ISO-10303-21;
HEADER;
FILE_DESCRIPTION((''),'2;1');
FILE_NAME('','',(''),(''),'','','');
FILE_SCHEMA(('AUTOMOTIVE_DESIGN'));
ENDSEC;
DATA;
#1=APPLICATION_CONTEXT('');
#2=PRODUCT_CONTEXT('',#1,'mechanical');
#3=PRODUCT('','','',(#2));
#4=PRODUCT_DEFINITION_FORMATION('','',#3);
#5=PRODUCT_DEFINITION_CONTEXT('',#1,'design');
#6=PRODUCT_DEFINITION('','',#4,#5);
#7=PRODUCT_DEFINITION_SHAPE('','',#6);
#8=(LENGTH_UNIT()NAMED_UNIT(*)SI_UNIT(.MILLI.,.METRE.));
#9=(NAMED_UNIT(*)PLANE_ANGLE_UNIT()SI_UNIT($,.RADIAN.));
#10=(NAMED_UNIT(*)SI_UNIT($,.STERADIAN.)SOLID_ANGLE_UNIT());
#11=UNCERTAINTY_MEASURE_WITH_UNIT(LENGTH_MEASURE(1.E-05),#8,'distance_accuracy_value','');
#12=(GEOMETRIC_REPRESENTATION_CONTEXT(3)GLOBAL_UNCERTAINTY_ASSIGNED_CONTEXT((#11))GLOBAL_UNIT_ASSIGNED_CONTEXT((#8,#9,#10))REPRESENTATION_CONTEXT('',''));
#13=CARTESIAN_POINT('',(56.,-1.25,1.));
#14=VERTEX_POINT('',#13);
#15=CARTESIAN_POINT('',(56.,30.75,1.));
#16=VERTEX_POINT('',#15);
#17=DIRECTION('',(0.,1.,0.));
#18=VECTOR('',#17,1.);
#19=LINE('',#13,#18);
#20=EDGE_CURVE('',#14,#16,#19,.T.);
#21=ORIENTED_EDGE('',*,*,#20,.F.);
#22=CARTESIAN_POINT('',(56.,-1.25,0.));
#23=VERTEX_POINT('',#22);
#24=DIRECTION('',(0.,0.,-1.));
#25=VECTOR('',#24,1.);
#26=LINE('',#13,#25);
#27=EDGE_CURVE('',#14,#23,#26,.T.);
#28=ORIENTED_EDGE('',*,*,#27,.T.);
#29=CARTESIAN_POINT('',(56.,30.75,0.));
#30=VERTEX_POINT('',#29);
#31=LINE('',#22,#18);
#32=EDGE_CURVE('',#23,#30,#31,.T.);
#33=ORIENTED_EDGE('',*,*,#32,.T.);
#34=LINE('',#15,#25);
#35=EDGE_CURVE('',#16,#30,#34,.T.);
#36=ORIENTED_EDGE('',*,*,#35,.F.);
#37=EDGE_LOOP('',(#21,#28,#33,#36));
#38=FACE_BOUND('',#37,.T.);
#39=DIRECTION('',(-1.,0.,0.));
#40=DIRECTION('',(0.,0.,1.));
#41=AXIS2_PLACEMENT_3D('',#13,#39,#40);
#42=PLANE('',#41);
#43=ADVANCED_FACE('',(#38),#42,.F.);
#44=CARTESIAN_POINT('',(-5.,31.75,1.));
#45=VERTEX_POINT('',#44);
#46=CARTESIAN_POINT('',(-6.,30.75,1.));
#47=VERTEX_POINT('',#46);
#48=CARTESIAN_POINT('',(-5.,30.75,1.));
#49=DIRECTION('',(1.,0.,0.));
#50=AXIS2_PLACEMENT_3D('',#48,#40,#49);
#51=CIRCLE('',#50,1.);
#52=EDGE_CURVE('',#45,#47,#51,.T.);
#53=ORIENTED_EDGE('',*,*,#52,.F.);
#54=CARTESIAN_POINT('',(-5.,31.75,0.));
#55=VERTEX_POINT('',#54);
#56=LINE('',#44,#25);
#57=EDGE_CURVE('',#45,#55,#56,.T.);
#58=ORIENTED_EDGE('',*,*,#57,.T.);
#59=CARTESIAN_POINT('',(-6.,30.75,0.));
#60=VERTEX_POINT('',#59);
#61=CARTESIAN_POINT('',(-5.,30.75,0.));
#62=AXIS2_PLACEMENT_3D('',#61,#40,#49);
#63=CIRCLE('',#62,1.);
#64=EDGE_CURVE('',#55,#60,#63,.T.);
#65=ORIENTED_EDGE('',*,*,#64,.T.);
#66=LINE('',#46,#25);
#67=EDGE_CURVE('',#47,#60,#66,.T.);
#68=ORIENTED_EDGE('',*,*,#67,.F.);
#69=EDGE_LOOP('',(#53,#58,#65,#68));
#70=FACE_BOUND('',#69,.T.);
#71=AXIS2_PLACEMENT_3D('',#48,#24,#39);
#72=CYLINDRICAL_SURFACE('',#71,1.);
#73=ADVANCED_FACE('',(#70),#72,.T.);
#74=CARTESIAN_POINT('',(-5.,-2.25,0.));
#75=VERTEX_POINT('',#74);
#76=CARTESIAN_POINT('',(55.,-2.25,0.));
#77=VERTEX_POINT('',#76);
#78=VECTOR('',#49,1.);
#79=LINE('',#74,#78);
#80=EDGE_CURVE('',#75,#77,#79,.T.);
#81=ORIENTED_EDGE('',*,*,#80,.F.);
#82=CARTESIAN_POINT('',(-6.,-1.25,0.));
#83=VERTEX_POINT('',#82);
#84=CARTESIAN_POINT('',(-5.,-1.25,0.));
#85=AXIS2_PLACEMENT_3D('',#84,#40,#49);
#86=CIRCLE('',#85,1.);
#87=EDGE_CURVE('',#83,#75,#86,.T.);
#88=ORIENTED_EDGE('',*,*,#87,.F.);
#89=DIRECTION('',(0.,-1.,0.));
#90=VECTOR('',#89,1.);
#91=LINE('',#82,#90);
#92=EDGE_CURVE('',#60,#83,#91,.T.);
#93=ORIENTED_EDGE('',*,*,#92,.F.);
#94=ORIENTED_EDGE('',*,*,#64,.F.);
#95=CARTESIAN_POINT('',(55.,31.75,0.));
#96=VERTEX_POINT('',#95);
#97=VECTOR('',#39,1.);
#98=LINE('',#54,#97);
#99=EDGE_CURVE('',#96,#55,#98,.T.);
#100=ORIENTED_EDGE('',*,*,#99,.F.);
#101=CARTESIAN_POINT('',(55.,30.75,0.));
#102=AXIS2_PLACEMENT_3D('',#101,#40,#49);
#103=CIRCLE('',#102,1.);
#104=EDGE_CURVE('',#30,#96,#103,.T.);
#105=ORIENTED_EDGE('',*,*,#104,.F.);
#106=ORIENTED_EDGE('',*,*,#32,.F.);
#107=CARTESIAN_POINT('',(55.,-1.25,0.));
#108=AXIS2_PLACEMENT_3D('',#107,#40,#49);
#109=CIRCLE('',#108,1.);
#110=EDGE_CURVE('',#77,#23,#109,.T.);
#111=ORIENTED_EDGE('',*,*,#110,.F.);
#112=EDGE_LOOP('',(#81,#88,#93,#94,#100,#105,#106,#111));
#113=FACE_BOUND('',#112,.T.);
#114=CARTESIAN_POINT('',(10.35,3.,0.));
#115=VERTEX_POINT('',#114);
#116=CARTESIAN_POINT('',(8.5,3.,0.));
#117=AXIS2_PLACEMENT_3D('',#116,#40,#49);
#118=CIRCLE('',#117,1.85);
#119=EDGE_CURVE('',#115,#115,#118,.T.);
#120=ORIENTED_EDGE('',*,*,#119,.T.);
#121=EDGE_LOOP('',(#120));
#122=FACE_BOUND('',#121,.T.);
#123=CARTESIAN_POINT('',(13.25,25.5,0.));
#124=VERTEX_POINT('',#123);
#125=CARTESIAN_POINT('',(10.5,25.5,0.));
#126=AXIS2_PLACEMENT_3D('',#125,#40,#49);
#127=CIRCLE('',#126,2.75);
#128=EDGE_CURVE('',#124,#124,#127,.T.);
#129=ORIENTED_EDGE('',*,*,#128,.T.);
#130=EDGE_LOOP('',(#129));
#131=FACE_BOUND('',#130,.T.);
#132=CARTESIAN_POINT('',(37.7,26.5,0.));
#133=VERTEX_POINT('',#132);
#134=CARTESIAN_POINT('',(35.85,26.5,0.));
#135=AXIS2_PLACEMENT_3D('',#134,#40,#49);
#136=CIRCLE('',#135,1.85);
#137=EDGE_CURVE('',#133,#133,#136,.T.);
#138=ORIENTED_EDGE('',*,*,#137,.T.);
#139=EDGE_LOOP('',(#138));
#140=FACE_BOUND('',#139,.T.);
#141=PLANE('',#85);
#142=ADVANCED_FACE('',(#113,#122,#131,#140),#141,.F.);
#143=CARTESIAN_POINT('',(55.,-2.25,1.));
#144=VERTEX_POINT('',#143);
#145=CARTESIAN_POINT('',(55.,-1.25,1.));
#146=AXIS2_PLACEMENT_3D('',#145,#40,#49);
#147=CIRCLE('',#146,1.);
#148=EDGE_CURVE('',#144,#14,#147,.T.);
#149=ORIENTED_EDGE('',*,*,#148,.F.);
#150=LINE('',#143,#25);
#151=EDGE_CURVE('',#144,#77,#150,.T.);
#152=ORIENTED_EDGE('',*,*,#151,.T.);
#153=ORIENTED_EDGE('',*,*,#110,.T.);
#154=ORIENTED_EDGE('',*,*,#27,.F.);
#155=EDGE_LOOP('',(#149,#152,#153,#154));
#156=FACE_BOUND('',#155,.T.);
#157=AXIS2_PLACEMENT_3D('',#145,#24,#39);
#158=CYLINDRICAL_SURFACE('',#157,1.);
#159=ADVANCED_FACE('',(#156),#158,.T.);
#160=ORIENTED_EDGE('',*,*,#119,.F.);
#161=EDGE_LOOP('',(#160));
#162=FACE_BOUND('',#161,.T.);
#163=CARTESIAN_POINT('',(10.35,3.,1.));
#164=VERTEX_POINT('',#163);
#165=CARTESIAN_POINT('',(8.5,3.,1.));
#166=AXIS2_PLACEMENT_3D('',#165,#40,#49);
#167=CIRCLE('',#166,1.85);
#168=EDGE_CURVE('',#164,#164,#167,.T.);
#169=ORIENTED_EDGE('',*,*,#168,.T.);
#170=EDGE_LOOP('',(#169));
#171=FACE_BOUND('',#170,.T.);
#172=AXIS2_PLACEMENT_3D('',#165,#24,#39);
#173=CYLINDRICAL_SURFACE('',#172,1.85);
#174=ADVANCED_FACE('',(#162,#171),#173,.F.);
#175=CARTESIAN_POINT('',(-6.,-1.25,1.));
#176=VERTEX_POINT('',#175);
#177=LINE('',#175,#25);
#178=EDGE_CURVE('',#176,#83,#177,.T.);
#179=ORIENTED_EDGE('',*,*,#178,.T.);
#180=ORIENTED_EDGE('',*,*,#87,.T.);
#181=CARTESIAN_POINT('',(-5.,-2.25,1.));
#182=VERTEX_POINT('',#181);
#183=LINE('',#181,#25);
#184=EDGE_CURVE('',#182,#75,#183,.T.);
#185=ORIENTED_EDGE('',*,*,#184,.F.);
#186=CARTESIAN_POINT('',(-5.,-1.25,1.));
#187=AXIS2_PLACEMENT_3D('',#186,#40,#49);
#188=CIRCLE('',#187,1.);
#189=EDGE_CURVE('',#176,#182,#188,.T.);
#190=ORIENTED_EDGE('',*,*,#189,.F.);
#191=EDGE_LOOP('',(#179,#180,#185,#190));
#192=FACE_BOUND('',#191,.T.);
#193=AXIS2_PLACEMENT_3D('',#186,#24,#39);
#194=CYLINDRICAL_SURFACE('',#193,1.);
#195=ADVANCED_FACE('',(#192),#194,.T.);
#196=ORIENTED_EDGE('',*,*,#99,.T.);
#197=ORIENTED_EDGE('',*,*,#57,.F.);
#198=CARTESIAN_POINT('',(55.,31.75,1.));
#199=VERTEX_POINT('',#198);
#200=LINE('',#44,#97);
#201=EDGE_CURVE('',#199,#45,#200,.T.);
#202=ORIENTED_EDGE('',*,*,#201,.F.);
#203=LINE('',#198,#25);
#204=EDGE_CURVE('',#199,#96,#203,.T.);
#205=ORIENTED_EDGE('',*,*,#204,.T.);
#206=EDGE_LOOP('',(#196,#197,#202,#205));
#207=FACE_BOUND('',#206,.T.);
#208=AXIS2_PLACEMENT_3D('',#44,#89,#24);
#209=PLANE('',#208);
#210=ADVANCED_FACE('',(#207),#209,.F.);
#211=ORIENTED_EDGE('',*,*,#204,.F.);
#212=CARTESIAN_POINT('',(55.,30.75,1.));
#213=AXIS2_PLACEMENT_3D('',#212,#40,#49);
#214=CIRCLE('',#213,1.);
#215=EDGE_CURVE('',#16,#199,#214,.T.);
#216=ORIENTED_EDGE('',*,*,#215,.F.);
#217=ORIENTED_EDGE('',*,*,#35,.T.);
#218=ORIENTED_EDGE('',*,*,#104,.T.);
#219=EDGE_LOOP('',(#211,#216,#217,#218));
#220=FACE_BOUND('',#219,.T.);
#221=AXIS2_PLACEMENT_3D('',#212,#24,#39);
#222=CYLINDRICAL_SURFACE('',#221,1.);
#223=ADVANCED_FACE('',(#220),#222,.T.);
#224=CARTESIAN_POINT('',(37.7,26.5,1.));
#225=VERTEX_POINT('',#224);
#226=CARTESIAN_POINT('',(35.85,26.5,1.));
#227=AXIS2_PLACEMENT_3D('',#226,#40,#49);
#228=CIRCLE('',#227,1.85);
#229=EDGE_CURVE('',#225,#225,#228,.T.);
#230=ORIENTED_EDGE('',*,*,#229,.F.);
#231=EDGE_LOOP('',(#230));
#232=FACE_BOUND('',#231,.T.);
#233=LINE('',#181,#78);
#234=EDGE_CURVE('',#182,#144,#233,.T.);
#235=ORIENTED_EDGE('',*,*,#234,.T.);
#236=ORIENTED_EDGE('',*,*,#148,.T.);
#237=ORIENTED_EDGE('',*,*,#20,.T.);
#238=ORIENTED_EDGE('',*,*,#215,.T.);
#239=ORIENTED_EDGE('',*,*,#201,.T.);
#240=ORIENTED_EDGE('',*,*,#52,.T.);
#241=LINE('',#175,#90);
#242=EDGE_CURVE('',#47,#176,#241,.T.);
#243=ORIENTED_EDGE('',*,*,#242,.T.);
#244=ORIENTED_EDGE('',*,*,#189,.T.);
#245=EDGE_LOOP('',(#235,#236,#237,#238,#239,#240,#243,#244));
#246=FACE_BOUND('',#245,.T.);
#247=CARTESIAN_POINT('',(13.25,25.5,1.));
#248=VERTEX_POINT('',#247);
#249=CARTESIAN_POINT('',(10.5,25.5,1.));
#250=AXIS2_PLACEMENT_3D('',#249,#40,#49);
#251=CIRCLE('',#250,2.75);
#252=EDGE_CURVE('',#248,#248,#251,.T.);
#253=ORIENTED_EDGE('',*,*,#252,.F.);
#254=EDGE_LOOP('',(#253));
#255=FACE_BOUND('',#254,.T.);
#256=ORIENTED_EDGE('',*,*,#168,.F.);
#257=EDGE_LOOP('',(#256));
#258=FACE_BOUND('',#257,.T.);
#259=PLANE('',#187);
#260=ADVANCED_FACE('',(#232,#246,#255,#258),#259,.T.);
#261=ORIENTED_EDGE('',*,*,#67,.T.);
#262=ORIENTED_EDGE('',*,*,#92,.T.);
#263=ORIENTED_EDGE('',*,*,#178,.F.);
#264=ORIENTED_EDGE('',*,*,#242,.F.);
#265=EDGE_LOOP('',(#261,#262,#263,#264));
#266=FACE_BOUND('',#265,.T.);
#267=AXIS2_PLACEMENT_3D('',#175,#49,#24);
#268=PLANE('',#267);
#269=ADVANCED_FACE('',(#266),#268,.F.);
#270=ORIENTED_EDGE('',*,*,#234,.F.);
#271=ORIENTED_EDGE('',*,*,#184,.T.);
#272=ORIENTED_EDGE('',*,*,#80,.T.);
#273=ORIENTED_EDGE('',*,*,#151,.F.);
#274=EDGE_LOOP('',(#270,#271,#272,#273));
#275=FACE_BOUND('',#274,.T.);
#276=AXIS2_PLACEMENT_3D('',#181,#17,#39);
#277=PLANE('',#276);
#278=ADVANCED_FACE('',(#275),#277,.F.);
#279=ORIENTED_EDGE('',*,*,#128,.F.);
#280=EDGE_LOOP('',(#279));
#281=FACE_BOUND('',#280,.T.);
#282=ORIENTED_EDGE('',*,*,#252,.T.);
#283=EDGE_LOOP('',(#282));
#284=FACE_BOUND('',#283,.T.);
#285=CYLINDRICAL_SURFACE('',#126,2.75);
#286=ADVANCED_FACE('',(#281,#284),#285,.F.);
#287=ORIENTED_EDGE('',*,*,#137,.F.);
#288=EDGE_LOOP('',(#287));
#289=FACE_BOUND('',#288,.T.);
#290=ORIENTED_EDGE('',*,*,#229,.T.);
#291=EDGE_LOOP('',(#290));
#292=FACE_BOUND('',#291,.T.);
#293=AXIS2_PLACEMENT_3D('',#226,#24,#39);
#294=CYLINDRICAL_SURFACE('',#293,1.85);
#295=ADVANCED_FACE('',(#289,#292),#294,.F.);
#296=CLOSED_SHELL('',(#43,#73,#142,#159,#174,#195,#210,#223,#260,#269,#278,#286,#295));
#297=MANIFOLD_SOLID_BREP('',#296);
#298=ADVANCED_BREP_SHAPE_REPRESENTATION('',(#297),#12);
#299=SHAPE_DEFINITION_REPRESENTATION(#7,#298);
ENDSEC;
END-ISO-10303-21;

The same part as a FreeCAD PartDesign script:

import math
import FreeCAD as App
import Part
import Sketcher
from FreeCAD import Vector

doc = App.newDocument("Part")
params = doc.addObject("Spreadsheet::Sheet", "Params")
for row, (alias, value) in enumerate([
    ("sketch1_radius", "1 mm"),
    ("sketch1_diameter", "3.7 mm"),
    ("sketch1_width", "60 mm"),
    ("sketch1_height", "32 mm"),
    ("pad1_length", "1 mm"),
    ("sketch2_diameter", "5.5 mm"),
], start=1):
    params.set(f"A{row}", alias)
    params.set(f"B{row}", "=" + value)
    params.setAlias(f"B{row}", alias)

body = doc.addObject("PartDesign::Body", "Body")

# Sketch on XY plane
sketch1 = body.newObject("Sketcher::SketchObject", "Sketch")
sketch1.AttachmentSupport = (doc.getObject("XY_Plane"), [""])
sketch1.MapMode = "FlatFace"
sketch1.addGeometry(Part.LineSegment(Vector(55, 31.75, 0), Vector(-5, 31.75, 0)), False)
sketch1.addGeometry(Part.ArcOfCircle(Part.Circle(Vector(-5, 30.75, 0), Vector(0, 0, 1), 1), math.radians(90), math.radians(180)), False)
sketch1.addGeometry(Part.LineSegment(Vector(-6, 30.75, 0), Vector(-6, -1.25, 0)), False)
sketch1.addGeometry(Part.ArcOfCircle(Part.Circle(Vector(-5, -1.25, 0), Vector(0, 0, 1), 1), math.radians(-180), math.radians(-90)), False)
sketch1.addGeometry(Part.LineSegment(Vector(-5, -2.25, 0), Vector(55, -2.25, 0)), False)
sketch1.addGeometry(Part.ArcOfCircle(Part.Circle(Vector(55, -1.25, 0), Vector(0, 0, 1), 1), math.radians(-90), math.radians(0)), False)
sketch1.addGeometry(Part.LineSegment(Vector(56, -1.25, 0), Vector(56, 30.75, 0)), False)
sketch1.addGeometry(Part.ArcOfCircle(Part.Circle(Vector(55, 30.75, 0), Vector(0, 0, 1), 1), math.radians(0), math.radians(90)), False)
sketch1.addGeometry(Part.Circle(Vector(8.5, 3, 0), Vector(0, 0, 1), 1.85), False)
sketch1.addGeometry(Part.Circle(Vector(35.85, 26.5, 0), Vector(0, 0, 1), 1.85), False)
sketch1.addConstraint(Sketcher.Constraint("Tangent", 0, 2, 1, 1))
sketch1.addConstraint(Sketcher.Constraint("Tangent", 1, 2, 2, 1))
sketch1.addConstraint(Sketcher.Constraint("Tangent", 2, 2, 3, 1))
sketch1.addConstraint(Sketcher.Constraint("Tangent", 3, 2, 4, 1))
sketch1.addConstraint(Sketcher.Constraint("Tangent", 4, 2, 5, 1))
sketch1.addConstraint(Sketcher.Constraint("Tangent", 5, 2, 6, 1))
sketch1.addConstraint(Sketcher.Constraint("Tangent", 6, 2, 7, 1))
sketch1.addConstraint(Sketcher.Constraint("Tangent", 7, 2, 0, 1))
sketch1.addConstraint(Sketcher.Constraint("Horizontal", 0))
sketch1.addConstraint(Sketcher.Constraint("Vertical", 2))
sketch1.addConstraint(Sketcher.Constraint("Horizontal", 4))
sketch1.addConstraint(Sketcher.Constraint("Vertical", 6))
sketch1.addConstraint(Sketcher.Constraint("Equal", 1, 3))
sketch1.addConstraint(Sketcher.Constraint("Equal", 3, 5))
sketch1.addConstraint(Sketcher.Constraint("Equal", 5, 7))
sketch1.addConstraint(Sketcher.Constraint("Equal", 8, 9))
sketch1.addConstraint(Sketcher.Constraint("Radius", 1, 1.0))
sketch1.addConstraint(Sketcher.Constraint("Diameter", 8, 3.7))
sketch1.addConstraint(Sketcher.Constraint("DistanceX", 0, 2, 0, 1, 60.0))
sketch1.addConstraint(Sketcher.Constraint("DistanceY", 2, 2, 2, 1, 32.0))
sketch1.addConstraint(Sketcher.Constraint("DistanceX", 1, 3, -1, 1, 5.0))
sketch1.addConstraint(Sketcher.Constraint("DistanceY", -1, 1, 8, 3, 3.0))
sketch1.addConstraint(Sketcher.Constraint("DistanceX", -1, 1, 8, 3, 8.5))
sketch1.addConstraint(Sketcher.Constraint("DistanceY", -1, 1, 9, 3, 26.5))
sketch1.addConstraint(Sketcher.Constraint("DistanceY", -1, 1, 1, 3, 30.75))
sketch1.addConstraint(Sketcher.Constraint("DistanceX", -1, 1, 9, 3, 35.85))
sketch1.setExpression("Constraints[16]", "Params.sketch1_radius")
sketch1.setExpression("Constraints[17]", "Params.sketch1_diameter")
sketch1.setExpression("Constraints[18]", "Params.sketch1_width")
sketch1.setExpression("Constraints[19]", "Params.sketch1_height")
pad1 = body.newObject("PartDesign::Pad", "Pad")
pad1.Profile = sketch1
pad1.setExpression("Length", "Params.pad1_length")

# Sketch on XY plane
sketch2 = body.newObject("Sketcher::SketchObject", "Sketch001")
sketch2.AttachmentSupport = (doc.getObject("XY_Plane"), [""])
sketch2.MapMode = "FlatFace"
sketch2.AttachmentOffset = App.Placement(Vector(0, 0, 1), App.Rotation())
sketch2.addGeometry(Part.Circle(Vector(10.5, 25.5, 0), Vector(0, 0, 1), 2.75), False)
sketch2.addConstraint(Sketcher.Constraint("Diameter", 0, 5.5))
sketch2.addConstraint(Sketcher.Constraint("DistanceX", -1, 1, 0, 3, 10.5))
sketch2.addConstraint(Sketcher.Constraint("DistanceY", -1, 1, 0, 3, 25.5))
sketch2.setExpression("Constraints[0]", "Params.sketch2_diameter")
pocket1 = body.newObject("PartDesign::Pocket", "Pocket")
pocket1.Profile = sketch2
pocket1.Type = "ThroughAll"

doc.recompute()
